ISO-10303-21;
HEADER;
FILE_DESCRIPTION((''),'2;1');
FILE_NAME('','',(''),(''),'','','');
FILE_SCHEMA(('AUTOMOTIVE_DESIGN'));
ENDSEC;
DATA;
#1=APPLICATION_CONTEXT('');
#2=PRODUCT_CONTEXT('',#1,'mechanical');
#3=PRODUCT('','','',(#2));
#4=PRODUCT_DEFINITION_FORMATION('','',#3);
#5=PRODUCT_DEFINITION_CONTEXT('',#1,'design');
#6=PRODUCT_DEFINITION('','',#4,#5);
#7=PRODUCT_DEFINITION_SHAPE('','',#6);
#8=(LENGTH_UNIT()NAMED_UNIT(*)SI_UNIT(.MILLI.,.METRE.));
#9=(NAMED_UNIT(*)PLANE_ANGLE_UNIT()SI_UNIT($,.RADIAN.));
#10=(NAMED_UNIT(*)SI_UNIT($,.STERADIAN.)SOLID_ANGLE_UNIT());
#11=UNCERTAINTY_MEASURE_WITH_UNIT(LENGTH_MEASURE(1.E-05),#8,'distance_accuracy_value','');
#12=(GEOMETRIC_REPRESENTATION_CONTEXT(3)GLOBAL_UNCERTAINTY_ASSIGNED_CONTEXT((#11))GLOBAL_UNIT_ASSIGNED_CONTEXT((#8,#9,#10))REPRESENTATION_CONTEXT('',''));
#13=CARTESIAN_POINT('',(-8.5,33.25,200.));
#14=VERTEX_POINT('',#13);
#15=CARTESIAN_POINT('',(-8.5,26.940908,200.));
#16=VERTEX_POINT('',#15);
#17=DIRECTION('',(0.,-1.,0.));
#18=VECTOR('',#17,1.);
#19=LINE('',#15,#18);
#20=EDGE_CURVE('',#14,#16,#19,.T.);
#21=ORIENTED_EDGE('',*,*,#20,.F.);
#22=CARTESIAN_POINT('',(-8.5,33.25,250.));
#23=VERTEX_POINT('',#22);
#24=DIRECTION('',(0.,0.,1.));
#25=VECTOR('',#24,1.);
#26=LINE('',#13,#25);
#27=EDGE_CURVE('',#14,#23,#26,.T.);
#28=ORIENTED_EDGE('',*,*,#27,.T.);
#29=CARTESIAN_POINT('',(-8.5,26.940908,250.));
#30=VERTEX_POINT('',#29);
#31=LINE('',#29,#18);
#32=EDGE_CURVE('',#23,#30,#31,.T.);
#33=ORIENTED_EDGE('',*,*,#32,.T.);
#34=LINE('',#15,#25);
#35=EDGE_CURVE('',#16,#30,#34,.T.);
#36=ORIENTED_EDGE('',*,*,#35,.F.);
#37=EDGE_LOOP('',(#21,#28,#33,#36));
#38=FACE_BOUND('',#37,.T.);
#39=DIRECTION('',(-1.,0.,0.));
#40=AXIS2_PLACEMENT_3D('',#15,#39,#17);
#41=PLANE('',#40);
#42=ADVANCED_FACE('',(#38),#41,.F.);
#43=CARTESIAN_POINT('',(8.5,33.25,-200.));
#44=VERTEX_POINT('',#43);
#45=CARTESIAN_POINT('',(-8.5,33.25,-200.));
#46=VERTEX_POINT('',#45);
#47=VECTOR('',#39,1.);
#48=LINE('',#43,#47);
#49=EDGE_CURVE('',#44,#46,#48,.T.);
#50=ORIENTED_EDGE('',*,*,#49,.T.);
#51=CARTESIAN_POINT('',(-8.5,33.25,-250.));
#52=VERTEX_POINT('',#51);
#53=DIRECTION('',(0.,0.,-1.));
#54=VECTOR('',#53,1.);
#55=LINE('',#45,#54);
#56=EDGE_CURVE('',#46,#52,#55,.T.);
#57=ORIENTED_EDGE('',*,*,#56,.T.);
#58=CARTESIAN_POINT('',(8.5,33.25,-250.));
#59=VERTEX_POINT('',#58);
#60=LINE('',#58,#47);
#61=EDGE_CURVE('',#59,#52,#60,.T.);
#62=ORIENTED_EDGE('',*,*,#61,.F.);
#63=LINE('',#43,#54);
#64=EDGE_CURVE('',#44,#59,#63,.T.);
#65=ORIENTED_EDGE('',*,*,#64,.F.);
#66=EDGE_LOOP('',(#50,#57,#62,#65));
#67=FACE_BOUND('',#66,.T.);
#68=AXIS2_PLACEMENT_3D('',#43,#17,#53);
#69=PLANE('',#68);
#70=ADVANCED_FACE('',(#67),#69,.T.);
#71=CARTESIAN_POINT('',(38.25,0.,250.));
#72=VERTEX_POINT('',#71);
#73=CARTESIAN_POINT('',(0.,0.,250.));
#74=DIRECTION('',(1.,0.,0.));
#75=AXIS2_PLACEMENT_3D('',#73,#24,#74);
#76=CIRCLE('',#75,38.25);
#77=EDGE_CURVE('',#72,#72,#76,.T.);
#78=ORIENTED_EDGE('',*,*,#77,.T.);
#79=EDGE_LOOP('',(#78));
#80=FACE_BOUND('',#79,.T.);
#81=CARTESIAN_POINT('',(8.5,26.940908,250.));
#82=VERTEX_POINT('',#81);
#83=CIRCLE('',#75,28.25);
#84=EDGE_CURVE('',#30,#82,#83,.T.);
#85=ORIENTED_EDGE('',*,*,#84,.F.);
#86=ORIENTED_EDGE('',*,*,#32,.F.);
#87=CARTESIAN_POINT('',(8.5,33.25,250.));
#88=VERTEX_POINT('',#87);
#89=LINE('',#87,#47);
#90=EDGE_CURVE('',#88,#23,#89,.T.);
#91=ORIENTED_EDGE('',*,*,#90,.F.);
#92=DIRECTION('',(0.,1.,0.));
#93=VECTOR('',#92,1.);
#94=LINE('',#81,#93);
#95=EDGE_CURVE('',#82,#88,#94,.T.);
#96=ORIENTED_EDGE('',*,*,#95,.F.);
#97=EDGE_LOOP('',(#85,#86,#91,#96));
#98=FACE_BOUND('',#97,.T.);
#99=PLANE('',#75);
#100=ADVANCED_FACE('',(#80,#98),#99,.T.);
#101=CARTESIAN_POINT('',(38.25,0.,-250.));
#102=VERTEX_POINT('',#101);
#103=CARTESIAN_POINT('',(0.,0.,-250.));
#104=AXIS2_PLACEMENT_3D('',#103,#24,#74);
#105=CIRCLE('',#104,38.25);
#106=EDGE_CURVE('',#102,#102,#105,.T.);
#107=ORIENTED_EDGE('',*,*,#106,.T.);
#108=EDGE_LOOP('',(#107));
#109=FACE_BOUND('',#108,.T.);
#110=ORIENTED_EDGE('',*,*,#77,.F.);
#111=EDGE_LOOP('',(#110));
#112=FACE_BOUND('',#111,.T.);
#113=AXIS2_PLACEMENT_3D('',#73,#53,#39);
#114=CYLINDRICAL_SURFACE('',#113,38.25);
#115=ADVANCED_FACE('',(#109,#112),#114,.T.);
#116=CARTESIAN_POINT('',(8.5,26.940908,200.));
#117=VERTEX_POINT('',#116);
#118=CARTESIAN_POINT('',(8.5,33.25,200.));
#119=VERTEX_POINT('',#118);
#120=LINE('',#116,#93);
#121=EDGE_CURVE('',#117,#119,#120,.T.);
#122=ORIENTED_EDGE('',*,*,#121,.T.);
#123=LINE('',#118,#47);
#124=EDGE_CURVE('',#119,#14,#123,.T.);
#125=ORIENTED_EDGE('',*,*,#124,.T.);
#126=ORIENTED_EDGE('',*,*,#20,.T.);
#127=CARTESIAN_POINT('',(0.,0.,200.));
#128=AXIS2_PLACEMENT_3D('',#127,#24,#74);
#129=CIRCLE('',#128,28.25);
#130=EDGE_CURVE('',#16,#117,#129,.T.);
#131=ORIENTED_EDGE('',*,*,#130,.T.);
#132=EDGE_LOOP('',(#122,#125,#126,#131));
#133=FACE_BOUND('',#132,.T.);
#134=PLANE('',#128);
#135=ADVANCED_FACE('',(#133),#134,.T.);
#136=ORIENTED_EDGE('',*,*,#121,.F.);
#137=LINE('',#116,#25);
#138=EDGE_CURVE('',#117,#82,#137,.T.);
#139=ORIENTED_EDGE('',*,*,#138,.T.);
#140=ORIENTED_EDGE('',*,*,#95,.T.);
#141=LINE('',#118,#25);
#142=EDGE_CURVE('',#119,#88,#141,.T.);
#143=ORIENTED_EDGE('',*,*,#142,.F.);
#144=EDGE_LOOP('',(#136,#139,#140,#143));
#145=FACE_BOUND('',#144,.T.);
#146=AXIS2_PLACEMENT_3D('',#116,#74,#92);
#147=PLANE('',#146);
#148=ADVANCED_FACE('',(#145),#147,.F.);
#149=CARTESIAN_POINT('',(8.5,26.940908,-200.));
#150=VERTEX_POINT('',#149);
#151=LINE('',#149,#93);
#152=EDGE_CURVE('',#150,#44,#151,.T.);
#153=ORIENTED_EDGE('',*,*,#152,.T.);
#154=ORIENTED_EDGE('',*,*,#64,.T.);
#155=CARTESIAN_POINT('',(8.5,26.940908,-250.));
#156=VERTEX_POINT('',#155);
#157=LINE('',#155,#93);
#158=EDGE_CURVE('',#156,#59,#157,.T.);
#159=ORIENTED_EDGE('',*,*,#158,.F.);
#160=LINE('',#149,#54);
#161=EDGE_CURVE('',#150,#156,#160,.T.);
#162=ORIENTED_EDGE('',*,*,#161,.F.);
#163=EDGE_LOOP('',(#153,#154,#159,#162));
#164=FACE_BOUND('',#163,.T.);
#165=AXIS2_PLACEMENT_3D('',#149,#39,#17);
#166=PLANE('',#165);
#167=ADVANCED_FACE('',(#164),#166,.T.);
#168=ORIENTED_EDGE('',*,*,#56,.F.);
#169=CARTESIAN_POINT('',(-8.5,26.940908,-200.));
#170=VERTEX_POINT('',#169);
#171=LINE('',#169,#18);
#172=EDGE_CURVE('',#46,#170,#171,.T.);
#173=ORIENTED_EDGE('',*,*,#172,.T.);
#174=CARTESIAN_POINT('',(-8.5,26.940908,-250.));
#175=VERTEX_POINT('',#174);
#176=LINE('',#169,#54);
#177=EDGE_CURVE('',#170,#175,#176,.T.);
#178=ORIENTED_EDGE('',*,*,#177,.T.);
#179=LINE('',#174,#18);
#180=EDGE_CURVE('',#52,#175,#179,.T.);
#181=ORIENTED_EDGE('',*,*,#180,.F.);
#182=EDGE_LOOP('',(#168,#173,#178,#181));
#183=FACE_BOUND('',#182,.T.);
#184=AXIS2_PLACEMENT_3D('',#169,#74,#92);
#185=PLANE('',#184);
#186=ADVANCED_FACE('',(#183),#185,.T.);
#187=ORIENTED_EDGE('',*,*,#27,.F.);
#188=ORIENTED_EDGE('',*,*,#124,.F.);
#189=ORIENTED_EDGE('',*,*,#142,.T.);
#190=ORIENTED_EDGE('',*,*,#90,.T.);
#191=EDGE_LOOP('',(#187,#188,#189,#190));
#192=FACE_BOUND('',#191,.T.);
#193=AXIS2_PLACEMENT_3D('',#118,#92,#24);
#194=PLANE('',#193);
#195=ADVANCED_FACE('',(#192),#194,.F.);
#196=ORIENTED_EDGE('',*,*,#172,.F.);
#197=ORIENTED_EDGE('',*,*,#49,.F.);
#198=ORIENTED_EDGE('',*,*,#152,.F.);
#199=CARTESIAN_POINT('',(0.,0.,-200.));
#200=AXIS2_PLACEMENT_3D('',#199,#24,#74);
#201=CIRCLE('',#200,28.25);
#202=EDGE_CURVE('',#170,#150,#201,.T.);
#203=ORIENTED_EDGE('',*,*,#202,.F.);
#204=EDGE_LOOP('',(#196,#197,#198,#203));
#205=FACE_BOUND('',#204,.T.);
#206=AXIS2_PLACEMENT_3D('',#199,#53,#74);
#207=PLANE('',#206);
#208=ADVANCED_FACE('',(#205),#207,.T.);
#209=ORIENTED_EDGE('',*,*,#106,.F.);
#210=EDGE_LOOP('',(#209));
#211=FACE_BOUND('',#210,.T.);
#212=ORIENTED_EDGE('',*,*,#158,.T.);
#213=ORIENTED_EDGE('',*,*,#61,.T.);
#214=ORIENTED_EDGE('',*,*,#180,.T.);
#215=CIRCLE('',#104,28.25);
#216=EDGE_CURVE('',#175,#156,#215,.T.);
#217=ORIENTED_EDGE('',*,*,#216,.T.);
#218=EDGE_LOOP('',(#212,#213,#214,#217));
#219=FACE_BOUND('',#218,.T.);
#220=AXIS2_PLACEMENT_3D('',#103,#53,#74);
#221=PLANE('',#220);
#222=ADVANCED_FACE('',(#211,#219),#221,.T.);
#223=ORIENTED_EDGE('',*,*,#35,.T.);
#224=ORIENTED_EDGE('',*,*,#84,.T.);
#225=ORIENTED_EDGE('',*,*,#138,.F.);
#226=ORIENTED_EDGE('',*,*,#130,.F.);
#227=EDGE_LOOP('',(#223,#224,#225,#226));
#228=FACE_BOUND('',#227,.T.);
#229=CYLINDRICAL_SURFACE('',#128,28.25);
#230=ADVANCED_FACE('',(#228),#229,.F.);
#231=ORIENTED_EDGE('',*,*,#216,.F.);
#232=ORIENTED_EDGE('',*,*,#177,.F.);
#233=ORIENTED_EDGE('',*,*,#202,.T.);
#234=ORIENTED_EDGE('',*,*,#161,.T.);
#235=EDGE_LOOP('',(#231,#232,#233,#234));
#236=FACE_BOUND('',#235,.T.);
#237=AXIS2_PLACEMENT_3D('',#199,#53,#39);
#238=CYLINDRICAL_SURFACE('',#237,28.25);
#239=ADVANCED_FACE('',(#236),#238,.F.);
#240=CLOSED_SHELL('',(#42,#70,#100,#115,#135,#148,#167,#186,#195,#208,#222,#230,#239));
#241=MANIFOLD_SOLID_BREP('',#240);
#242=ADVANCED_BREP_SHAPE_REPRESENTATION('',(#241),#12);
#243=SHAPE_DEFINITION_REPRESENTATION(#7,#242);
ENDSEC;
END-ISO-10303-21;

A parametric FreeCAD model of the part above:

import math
import FreeCAD as App
import Part
import Sketcher

doc = App.newDocument("Part")
params = doc.addObject("Spreadsheet::Sheet", "Params")
for row, (alias, value) in enumerate([
    ("sketch1_diameter", "76.5 mm"),
    ("pad1_length", "250 mm"),
    ("sketch2_width", "17 mm"),
    ("sketch2_radius", "28.25 mm"),
    ("pocket1_length", "50 mm"),
], start=1):
    params.set(f"A{row}", alias)
    params.set(f"B{row}", "=" + value)
    params.setAlias(f"B{row}", alias)

body = doc.addObject("PartDesign::Body", "Body")

# Sketch on XY plane
sketch1 = doc.addObject("Sketcher::SketchObject", "Sketch")
body.addObject(sketch1)
sketch1.AttachmentSupport = (doc.XY_Plane, [""])
sketch1.MapMode = "FlatFace"
sketch1.addGeometry(Part.Circle(App.Vector(0, 0, 0), App.Vector(0, 0, 1), 38.25), False)
sketch1.addConstraint([
    Sketcher.Constraint("Coincident", 0, 3, -1, 1),
    Sketcher.Constraint("Diameter", 0, 76.5),
])
sketch1.setExpression("Constraints[1]", "Params.sketch1_diameter")
pad1 = doc.addObject("PartDesign::Pad", "Pad")
body.addObject(pad1)
pad1.Profile = sketch1
pad1.setExpression("Length", "Params.pad1_length")

# Sketch on XY plane
sketch2 = doc.addObject("Sketcher::SketchObject", "Sketch001")
body.addObject(sketch2)
sketch2.AttachmentSupport = (doc.XY_Plane, [""])
sketch2.MapMode = "FlatFace"
sketch2.AttachmentOffset = App.Placement(App.Vector(0, 0, 250), App.Rotation())
sketch2.addGeometry([
    Part.LineSegment(App.Vector(-8.5, 33.25, 0), App.Vector(-8.5, 26.940908, 0)),
    Part.ArcOfCircle(Part.Circle(App.Vector(0, 0, 0), App.Vector(0, 0, 1), 28.25), math.radians(107.510763), math.radians(432.489237)),
    Part.LineSegment(App.Vector(8.5, 26.940908, 0), App.Vector(8.5, 33.25, 0)),
    Part.LineSegment(App.Vector(8.5, 33.25, 0), App.Vector(-8.5, 33.25, 0)),
], False)
sketch2.addConstraint([
    Sketcher.Constraint("Coincident", 0, 2, 1, 1),
    Sketcher.Constraint("Coincident", 1, 2, 2, 1),
    Sketcher.Constraint("Coincident", 2, 2, 3, 1),
    Sketcher.Constraint("Coincident", 3, 2, 0, 1),
    Sketcher.Constraint("Vertical", 0),
    Sketcher.Constraint("Vertical", 2),
    Sketcher.Constraint("Horizontal", 3),
    Sketcher.Constraint("Coincident", 1, 3, -1, 1),
    Sketcher.Constraint("Horizontal", 0, 2, 1, 2),
    Sketcher.Constraint("DistanceX", 3, 2, 3, 1, 17.0),
    Sketcher.Constraint("Radius", 1, 28.25),
    Sketcher.Constraint("DistanceY", -1, 1, 2, 2, 33.25),
])
sketch2.setExpression("Constraints[9]", "Params.sketch2_width")
sketch2.setExpression("Constraints[10]", "Params.sketch2_radius")
pocket1 = doc.addObject("PartDesign::Pocket", "Pocket")
body.addObject(pocket1)
pocket1.Profile = sketch2
pocket1.setExpression("Length", "Params.pocket1_length")
doc.recompute()

mirrored = doc.addObject("PartDesign::Mirrored", "Mirrored")
body.addObject(mirrored)
mirrored.Originals = [pad1, pocket1]
mirrored.MirrorPlane = (doc.XY_Plane, [""])
body.Tip = mirrored

doc.recompute()
